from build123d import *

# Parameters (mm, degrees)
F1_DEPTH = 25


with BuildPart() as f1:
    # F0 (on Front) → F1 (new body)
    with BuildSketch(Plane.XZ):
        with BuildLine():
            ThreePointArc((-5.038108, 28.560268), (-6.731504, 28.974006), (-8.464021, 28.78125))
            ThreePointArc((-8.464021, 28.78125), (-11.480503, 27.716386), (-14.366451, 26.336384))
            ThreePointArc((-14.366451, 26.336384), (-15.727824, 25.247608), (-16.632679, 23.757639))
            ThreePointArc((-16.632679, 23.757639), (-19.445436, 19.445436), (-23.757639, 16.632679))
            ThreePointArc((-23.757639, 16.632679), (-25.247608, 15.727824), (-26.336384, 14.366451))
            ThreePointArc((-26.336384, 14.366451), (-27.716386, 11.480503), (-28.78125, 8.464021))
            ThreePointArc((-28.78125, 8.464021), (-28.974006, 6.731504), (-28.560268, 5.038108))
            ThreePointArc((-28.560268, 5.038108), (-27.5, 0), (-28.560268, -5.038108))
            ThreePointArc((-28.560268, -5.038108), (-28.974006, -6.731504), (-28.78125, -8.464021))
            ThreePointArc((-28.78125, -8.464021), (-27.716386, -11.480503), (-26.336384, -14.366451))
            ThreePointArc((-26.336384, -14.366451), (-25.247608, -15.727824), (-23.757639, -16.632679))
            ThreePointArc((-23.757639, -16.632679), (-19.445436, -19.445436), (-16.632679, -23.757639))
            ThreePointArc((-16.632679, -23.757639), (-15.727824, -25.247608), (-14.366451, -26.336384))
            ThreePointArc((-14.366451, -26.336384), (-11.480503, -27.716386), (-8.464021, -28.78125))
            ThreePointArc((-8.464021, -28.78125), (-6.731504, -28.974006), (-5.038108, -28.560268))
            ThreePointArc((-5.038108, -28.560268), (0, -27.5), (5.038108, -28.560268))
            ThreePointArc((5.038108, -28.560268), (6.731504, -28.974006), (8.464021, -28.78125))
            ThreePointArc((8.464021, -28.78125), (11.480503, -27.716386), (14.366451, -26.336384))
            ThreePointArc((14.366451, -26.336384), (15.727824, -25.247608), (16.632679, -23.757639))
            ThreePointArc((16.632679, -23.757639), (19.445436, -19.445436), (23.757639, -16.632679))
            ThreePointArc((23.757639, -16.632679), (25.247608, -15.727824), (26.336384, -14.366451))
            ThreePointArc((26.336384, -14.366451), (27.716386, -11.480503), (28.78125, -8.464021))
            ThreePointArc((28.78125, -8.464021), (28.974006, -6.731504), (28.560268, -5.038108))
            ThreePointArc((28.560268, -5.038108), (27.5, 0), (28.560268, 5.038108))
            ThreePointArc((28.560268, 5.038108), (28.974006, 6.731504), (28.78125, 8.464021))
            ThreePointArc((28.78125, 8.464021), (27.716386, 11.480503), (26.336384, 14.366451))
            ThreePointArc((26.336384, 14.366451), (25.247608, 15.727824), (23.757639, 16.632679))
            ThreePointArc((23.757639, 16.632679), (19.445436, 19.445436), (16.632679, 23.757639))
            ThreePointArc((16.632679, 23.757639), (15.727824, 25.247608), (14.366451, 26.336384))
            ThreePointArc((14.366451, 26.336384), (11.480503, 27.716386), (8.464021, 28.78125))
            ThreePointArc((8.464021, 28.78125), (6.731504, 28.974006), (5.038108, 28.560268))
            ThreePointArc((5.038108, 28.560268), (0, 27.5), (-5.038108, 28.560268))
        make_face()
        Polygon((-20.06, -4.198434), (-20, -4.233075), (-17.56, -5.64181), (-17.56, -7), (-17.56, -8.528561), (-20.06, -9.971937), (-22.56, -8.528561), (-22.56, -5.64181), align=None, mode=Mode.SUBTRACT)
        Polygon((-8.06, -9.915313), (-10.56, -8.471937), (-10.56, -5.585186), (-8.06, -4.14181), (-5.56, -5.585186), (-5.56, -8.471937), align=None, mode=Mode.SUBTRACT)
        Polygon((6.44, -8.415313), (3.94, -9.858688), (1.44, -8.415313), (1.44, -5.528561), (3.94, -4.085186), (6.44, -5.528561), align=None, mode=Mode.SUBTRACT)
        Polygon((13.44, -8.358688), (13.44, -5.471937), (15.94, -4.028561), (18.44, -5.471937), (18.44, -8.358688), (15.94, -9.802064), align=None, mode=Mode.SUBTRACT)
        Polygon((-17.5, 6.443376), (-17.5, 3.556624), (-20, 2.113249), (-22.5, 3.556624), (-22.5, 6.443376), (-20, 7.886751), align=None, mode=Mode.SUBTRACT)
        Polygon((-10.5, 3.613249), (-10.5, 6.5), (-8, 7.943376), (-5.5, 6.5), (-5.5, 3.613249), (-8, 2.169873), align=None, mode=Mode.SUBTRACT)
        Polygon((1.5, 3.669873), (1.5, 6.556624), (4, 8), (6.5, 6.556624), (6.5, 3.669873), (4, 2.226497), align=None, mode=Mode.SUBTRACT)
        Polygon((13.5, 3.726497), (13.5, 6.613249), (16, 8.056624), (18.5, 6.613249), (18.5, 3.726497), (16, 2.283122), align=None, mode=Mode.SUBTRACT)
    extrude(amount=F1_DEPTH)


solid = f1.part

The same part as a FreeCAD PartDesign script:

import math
import FreeCAD as App
import Part
import Sketcher


def add_polygon(sketch, points):
    """Adds a closed chain of lines whose ends are joined by coincident constraints."""
    first, n = sketch.GeometryCount, len(points)
    for a, b in zip(points, points[1:] + points[:1]):
        sketch.addGeometry(Part.LineSegment(App.Vector(*a, 0), App.Vector(*b, 0)), False)
    for i in range(n):
        sketch.addConstraint(Sketcher.Constraint("Coincident", first + i, 2, first + (i + 1) % n, 1))

doc = App.newDocument("Part")
body = doc.addObject("PartDesign::Body", "Body")

# Sketch on XZ plane
sketch1 = body.newObject("Sketcher::SketchObject", "Sketch")
sketch1.AttachmentSupport = (doc.getObject("XZ_Plane"), [""])
sketch1.MapMode = "FlatFace"
sketch1.addGeometry(Part.ArcOfCircle(Part.Circle(App.Vector(-7.053351, 23.984379, 0), App.Vector(0, 0, 1), 4.999996), math.radians(66.231086), math.radians(106.387629)), False)  # 0
sketch1.addGeometry(Part.ArcOfCircle(Part.Circle(App.Vector(0.000018, -0.000049, 0), App.Vector(0, 0, 1), 30.000052), math.radians(106.387617), math.radians(118.612373)), False)  # 1
sketch1.addGeometry(Part.ArcOfCircle(Part.Circle(App.Vector(-11.97204, 21.946985, 0), App.Vector(0, 0, 1), 5.000003), math.radians(118.612411), math.radians(158.768903)), False)  # 2
sketch1.addGeometry(Part.ArcOfCircle(Part.Circle(App.Vector(-28.284266, 28.284266, 0), App.Vector(0, 0, 1), 12.499993), math.radians(-68.768914), math.radians(-21.231086)), False)  # 3
sketch1.addGeometry(Part.ArcOfCircle(Part.Circle(App.Vector(-21.946985, 11.97204, 0), App.Vector(0, 0, 1), 5.000003), math.radians(111.231097), math.radians(151.387589)), False)  # 4
sketch1.addGeometry(Part.ArcOfCircle(Part.Circle(App.Vector(0.000049, -0.000018, 0), App.Vector(0, 0, 1), 30.000052), math.radians(151.387627), math.radians(163.612383)), False)  # 5
sketch1.addGeometry(Part.ArcOfCircle(Part.Circle(App.Vector(-23.984379, 7.053351, 0), App.Vector(0, 0, 1), 4.999996), math.radians(163.612371), math.radians(203.768914)), False)  # 6
sketch1.addGeometry(Part.ArcOfCircle(Part.Circle(App.Vector(-40, 0, 0), App.Vector(0, 0, 1), 12.5), math.radians(-23.768902), math.radians(23.768902)), False)  # 7
sketch1.addGeometry(Part.ArcOfCircle(Part.Circle(App.Vector(-23.984379, -7.053351, 0), App.Vector(0, 0, 1), 4.999996), math.radians(156.231086), math.radians(196.387629)), False)  # 8
sketch1.addGeometry(Part.ArcOfCircle(Part.Circle(App.Vector(0.000049, 0.000018, 0), App.Vector(0, 0, 1), 30.000052), math.radians(-163.612383), math.radians(-151.387627)), False)  # 9
sketch1.addGeometry(Part.ArcOfCircle(Part.Circle(App.Vector(-21.946985, -11.97204, 0), App.Vector(0, 0, 1), 5.000003), math.radians(-151.387589), math.radians(-111.231097)), False)  # 10
sketch1.addGeometry(Part.ArcOfCircle(Part.Circle(App.Vector(-28.284266, -28.284266, 0), App.Vector(0, 0, 1), 12.499993), math.radians(21.231086), math.radians(68.768914)), False)  # 11
sketch1.addGeometry(Part.ArcOfCircle(Part.Circle(App.Vector(-11.97204, -21.946985, 0), App.Vector(0, 0, 1), 5.000003), math.radians(-158.768903), math.radians(-118.612411)), False)  # 12
sketch1.addGeometry(Part.ArcOfCircle(Part.Circle(App.Vector(0.000018, 0.000049, 0), App.Vector(0, 0, 1), 30.000052), math.radians(-118.612373), math.radians(-106.387617)), False)  # 13
sketch1.addGeometry(Part.ArcOfCircle(Part.Circle(App.Vector(-7.053351, -23.984379, 0), App.Vector(0, 0, 1), 4.999996), math.radians(-106.387629), math.radians(-66.231086)), False)  # 14
sketch1.addGeometry(Part.ArcOfCircle(Part.Circle(App.Vector(0, -40, 0), App.Vector(0, 0, 1), 12.5), math.radians(66.231098), math.radians(113.768902)), False)  # 15
sketch1.addGeometry(Part.ArcOfCircle(Part.Circle(App.Vector(7.053351, -23.984379, 0), App.Vector(0, 0, 1), 4.999996), math.radians(-113.768914), math.radians(-73.612371)), False)  # 16
sketch1.addGeometry(Part.ArcOfCircle(Part.Circle(App.Vector(-0.000018, 0.000049, 0), App.Vector(0, 0, 1), 30.000052), math.radians(-73.612383), math.radians(-61.387627)), False)  # 17
sketch1.addGeometry(Part.ArcOfCircle(Part.Circle(App.Vector(11.97204, -21.946985, 0), App.Vector(0, 0, 1), 5.000003), math.radians(-61.387589), math.radians(-21.231097)), False)  # 18
sketch1.addGeometry(Part.ArcOfCircle(Part.Circle(App.Vector(28.284266, -28.284266, 0), App.Vector(0, 0, 1), 12.499993), math.radians(111.231086), math.radians(158.768914)), False)  # 19
sketch1.addGeometry(Part.ArcOfCircle(Part.Circle(App.Vector(21.946985, -11.97204, 0), App.Vector(0, 0, 1), 5.000003), math.radians(-68.768903), math.radians(-28.612411)), False)  # 20
sketch1.addGeometry(Part.ArcOfCircle(Part.Circle(App.Vector(-0.000049, 0.000018, 0), App.Vector(0, 0, 1), 30.000052), math.radians(-28.612373), math.radians(-16.387617)), False)  # 21
sketch1.addGeometry(Part.ArcOfCircle(Part.Circle(App.Vector(23.984379, -7.053351, 0), App.Vector(0, 0, 1), 4.999996), math.radians(-16.387629), math.radians(23.768914)), False)  # 22
sketch1.addGeometry(Part.ArcOfCircle(Part.Circle(App.Vector(40, 0, 0), App.Vector(0, 0, 1), 12.5), math.radians(156.231098), math.radians(203.768902)), False)  # 23
sketch1.addGeometry(Part.ArcOfCircle(Part.Circle(App.Vector(23.984379, 7.053351, 0), App.Vector(0, 0, 1), 4.999996), math.radians(-23.768914), math.radians(16.387629)), False)  # 24
sketch1.addGeometry(Part.ArcOfCircle(Part.Circle(App.Vector(-0.000049, -0.000018, 0), App.Vector(0, 0, 1), 30.000052), math.radians(16.387617), math.radians(28.612373)), False)  # 25
sketch1.addGeometry(Part.ArcOfCircle(Part.Circle(App.Vector(21.946985, 11.97204, 0), App.Vector(0, 0, 1), 5.000003), math.radians(28.612411), math.radians(68.768903)), False)  # 26
sketch1.addGeometry(Part.ArcOfCircle(Part.Circle(App.Vector(28.284266, 28.284266, 0), App.Vector(0, 0, 1), 12.499993), math.radians(-158.768914), math.radians(-111.231086)), False)  # 27
sketch1.addGeometry(Part.ArcOfCircle(Part.Circle(App.Vector(11.97204, 21.946985, 0), App.Vector(0, 0, 1), 5.000003), math.radians(21.231097), math.radians(61.387589)), False)  # 28
sketch1.addGeometry(Part.ArcOfCircle(Part.Circle(App.Vector(-0.000018, -0.000049, 0), App.Vector(0, 0, 1), 30.000052), math.radians(61.387627), math.radians(73.612383)), False)  # 29
sketch1.addGeometry(Part.ArcOfCircle(Part.Circle(App.Vector(7.053351, 23.984379, 0), App.Vector(0, 0, 1), 4.999996), math.radians(73.612371), math.radians(113.768914)), False)  # 30
sketch1.addGeometry(Part.ArcOfCircle(Part.Circle(App.Vector(0, 40, 0), App.Vector(0, 0, 1), 12.5), math.radians(-113.768902), math.radians(-66.231098)), False)  # 31
add_polygon(sketch1, [(-22.56, -5.64181), (-20.06, -4.198434), (-20, -4.233075), (-17.56, -5.64181), (-17.56, -8.528561), (-20.06, -9.971937), (-22.56, -8.528561)])  # lines 32-38
add_polygon(sketch1, [(-5.56, -8.471937), (-8.06, -9.915313), (-10.56, -8.471937), (-10.56, -5.585186), (-8.06, -4.14181), (-5.56, -5.585186)])  # lines 39-44
add_polygon(sketch1, [(6.44, -5.528561), (6.44, -8.415313), (3.94, -9.858688), (1.44, -8.415313), (1.44, -5.528561), (3.94, -4.085186)])  # lines 45-50
add_polygon(sketch1, [(15.94, -9.802064), (13.44, -8.358688), (13.44, -5.471937), (15.94, -4.028561), (18.44, -5.471937), (18.44, -8.358688)])  # lines 51-56
add_polygon(sketch1, [(-20, 7.886751), (-17.5, 6.443376), (-17.5, 3.556624), (-20, 2.113249), (-22.5, 3.556624), (-22.5, 6.443376)])  # lines 57-62
add_polygon(sketch1, [(-8, 2.169873), (-10.5, 3.613249), (-10.5, 6.5), (-8, 7.943376), (-5.5, 6.5), (-5.5, 3.613249)])  # lines 63-68
add_polygon(sketch1, [(4, 2.226497), (1.5, 3.669873), (1.5, 6.556624), (4, 8), (6.5, 6.556624), (6.5, 3.669873)])  # lines 69-74
add_polygon(sketch1, [(16, 2.283122), (13.5, 3.726497), (13.5, 6.613249), (16, 8.056624), (18.5, 6.613249), (18.5, 3.726497)])  # lines 75-80
sketch1.addConstraint(Sketcher.Constraint("Coincident", 0, 2, 1, 1))
sketch1.addConstraint(Sketcher.Constraint("Coincident", 1, 2, 2, 1))
sketch1.addConstraint(Sketcher.Constraint("Coincident", 2, 2, 3, 2))
sketch1.addConstraint(Sketcher.Constraint("Coincident", 3, 1, 4, 1))
sketch1.addConstraint(Sketcher.Constraint("Coincident", 4, 2, 5, 1))
sketch1.addConstraint(Sketcher.Constraint("Coincident", 5, 2, 6, 1))
sketch1.addConstraint(Sketcher.Constraint("Coincident", 6, 2, 7, 2))
sketch1.addConstraint(Sketcher.Constraint("Coincident", 7, 1, 8, 1))
sketch1.addConstraint(Sketcher.Constraint("Coincident", 8, 2, 9, 1))
sketch1.addConstraint(Sketcher.Constraint("Coincident", 9, 2, 10, 1))
sketch1.addConstraint(Sketcher.Constraint("Coincident", 10, 2, 11, 2))
sketch1.addConstraint(Sketcher.Constraint("Coincident", 11, 1, 12, 1))
sketch1.addConstraint(Sketcher.Constraint("Coincident", 12, 2, 13, 1))
sketch1.addConstraint(Sketcher.Constraint("Coincident", 13, 2, 14, 1))
sketch1.addConstraint(Sketcher.Constraint("Coincident", 14, 2, 15, 2))
sketch1.addConstraint(Sketcher.Constraint("Coincident", 15, 1, 16, 1))
sketch1.addConstraint(Sketcher.Constraint("Coincident", 16, 2, 17, 1))
sketch1.addConstraint(Sketcher.Constraint("Coincident", 17, 2, 18, 1))
sketch1.addConstraint(Sketcher.Constraint("Coincident", 18, 2, 19, 2))
sketch1.addConstraint(Sketcher.Constraint("Coincident", 19, 1, 20, 1))
sketch1.addConstraint(Sketcher.Constraint("Coincident", 20, 2, 21, 1))
sketch1.addConstraint(Sketcher.Constraint("Coincident", 21, 2, 22, 1))
sketch1.addConstraint(Sketcher.Constraint("Coincident", 22, 2, 23, 2))
sketch1.addConstraint(Sketcher.Constraint("Coincident", 23, 1, 24, 1))
sketch1.addConstraint(Sketcher.Constraint("Coincident", 24, 2, 25, 1))
sketch1.addConstraint(Sketcher.Constraint("Coincident", 25, 2, 26, 1))
sketch1.addConstraint(Sketcher.Constraint("Coincident", 26, 2, 27, 2))
sketch1.addConstraint(Sketcher.Constraint("Coincident", 27, 1, 28, 1))
sketch1.addConstraint(Sketcher.Constraint("Coincident", 28, 2, 29, 1))
sketch1.addConstraint(Sketcher.Constraint("Coincident", 29, 2, 30, 1))
sketch1.addConstraint(Sketcher.Constraint("Coincident", 30, 2, 31, 2))
sketch1.addConstraint(Sketcher.Constraint("Coincident", 31, 1, 0, 1))
sketch1.addConstraint(Sketcher.Constraint("Vertical", 35))
sketch1.addConstraint(Sketcher.Constraint("Vertical", 38))
sketch1.addConstraint(Sketcher.Constraint("Vertical", 41))
sketch1.addConstraint(Sketcher.Constraint("Vertical", 44))
sketch1.addConstraint(Sketcher.Constraint("Vertical", 45))
sketch1.addConstraint(Sketcher.Constraint("Vertical", 48))
sketch1.addConstraint(Sketcher.Constraint("Vertical", 52))
sketch1.addConstraint(Sketcher.Constraint("Vertical", 55))
sketch1.addConstraint(Sketcher.Constraint("Vertical", 58))
sketch1.addConstraint(Sketcher.Constraint("Vertical", 61))
sketch1.addConstraint(Sketcher.Constraint("Vertical", 64))
sketch1.addConstraint(Sketcher.Constraint("Vertical", 67))
sketch1.addConstraint(Sketcher.Constraint("Vertical", 70))
sketch1.addConstraint(Sketcher.Constraint("Vertical", 73))
sketch1.addConstraint(Sketcher.Constraint("Vertical", 76))
sketch1.addConstraint(Sketcher.Constraint("Vertical", 79))
sketch1.addConstraint(Sketcher.Constraint("PointOnObject", 7, 3, -1))
sketch1.addConstraint(Sketcher.Constraint("PointOnObject", 15, 3, -2))
sketch1.addConstraint(Sketcher.Constraint("PointOnObject", 23, 3, -1))
sketch1.addConstraint(Sketcher.Constraint("PointOnObject", 31, 3, -2))
sketch1.addConstraint(Sketcher.Constraint("Radius", 7, 12.5))
sketch1.addConstraint(Sketcher.Constraint("Radius", 15, 12.5))
sketch1.addConstraint(Sketcher.Constraint("Radius", 23, 12.5))
sketch1.addConstraint(Sketcher.Constraint("Radius", 31, 12.5))
sketch1.addConstraint(Sketcher.Constraint("DistanceX", 7, 3, -1, 1, 40.0))
sketch1.addConstraint(Sketcher.Constraint("DistanceY", 15, 3, -1, 1, 40.0))
sketch1.addConstraint(Sketcher.Constraint("DistanceX", -1, 1, 23, 3, 40.0))
sketch1.addConstraint(Sketcher.Constraint("DistanceY", -1, 1, 31, 3, 40.0))
sketch1.addConstraint(Sketcher.Constraint("DistanceX", 33, 2, -1, 1, 20.0))
sketch1.addConstraint(Sketcher.Constraint("DistanceX", 59, 2, -1, 1, 20.0))
sketch1.addConstraint(Sketcher.Constraint("DistanceX", 62, 2, -1, 1, 20.0))
sketch1.addConstraint(Sketcher.Constraint("DistanceX", 65, 2, -1, 1, 8.0))
sketch1.addConstraint(Sketcher.Constraint("DistanceX", 68, 2, -1, 1, 8.0))
sketch1.addConstraint(Sketcher.Constraint("DistanceX", -1, 1, 71, 2, 4.0))
sketch1.addConstraint(Sketcher.Constraint("DistanceY", -1, 1, 71, 2, 8.0))
sketch1.addConstraint(Sketcher.Constraint("DistanceX", -1, 1, 74, 2, 4.0))
sketch1.addConstraint(Sketcher.Constraint("DistanceX", -1, 1, 77, 2, 16.0))
sketch1.addConstraint(Sketcher.Constraint("DistanceX", -1, 1, 80, 2, 16.0))
sketch1.addConstraint(Sketcher.Constraint("DistanceX", 57, 2, -1, 1, 17.5))
sketch1.addConstraint(Sketcher.Constraint("DistanceX", 60, 2, -1, 1, 22.5))
sketch1.addConstraint(Sketcher.Constraint("DistanceX", 63, 2, -1, 1, 10.5))
sketch1.addConstraint(Sketcher.Constraint("DistanceY", -1, 1, 64, 2, 6.5))
sketch1.addConstraint(Sketcher.Constraint("DistanceX", 66, 2, -1, 1, 5.5))
sketch1.addConstraint(Sketcher.Constraint("DistanceY", -1, 1, 66, 2, 6.5))
sketch1.addConstraint(Sketcher.Constraint("DistanceX", -1, 1, 69, 2, 1.5))
sketch1.addConstraint(Sketcher.Constraint("DistanceX", -1, 1, 72, 2, 6.5))
sketch1.addConstraint(Sketcher.Constraint("DistanceX", -1, 1, 75, 2, 13.5))
sketch1.addConstraint(Sketcher.Constraint("DistanceX", -1, 1, 78, 2, 18.5))
sketch1.addConstraint(Sketcher.Constraint("DistanceX", 32, 2, -1, 1, 20.06))
sketch1.addConstraint(Sketcher.Constraint("DistanceX", 34, 2, -1, 1, 17.56))
sketch1.addConstraint(Sketcher.Constraint("DistanceX", 36, 2, -1, 1, 20.06))
sketch1.addConstraint(Sketcher.Constraint("DistanceX", 37, 2, -1, 1, 22.56))
sketch1.addConstraint(Sketcher.Constraint("DistanceX", 39, 2, -1, 1, 8.06))
sketch1.addConstraint(Sketcher.Constraint("DistanceX", 40, 2, -1, 1, 10.56))
sketch1.addConstraint(Sketcher.Constraint("DistanceX", 42, 2, -1, 1, 8.06))
sketch1.addConstraint(Sketcher.Constraint("DistanceX", 43, 2, -1, 1, 5.56))
sketch1.addConstraint(Sketcher.Constraint("DistanceX", -1, 1, 45, 2, 6.44))
sketch1.addConstraint(Sketcher.Constraint("DistanceX", -1, 1, 46, 2, 3.94))
sketch1.addConstraint(Sketcher.Constraint("DistanceX", -1, 1, 47, 2, 1.44))
sketch1.addConstraint(Sketcher.Constraint("DistanceX", -1, 1, 49, 2, 3.94))
sketch1.addConstraint(Sketcher.Constraint("DistanceX", -1, 1, 51, 2, 13.44))
sketch1.addConstraint(Sketcher.Constraint("DistanceX", -1, 1, 53, 2, 15.94))
sketch1.addConstraint(Sketcher.Constraint("DistanceX", -1, 1, 54, 2, 18.44))
sketch1.addConstraint(Sketcher.Constraint("DistanceX", -1, 1, 56, 2, 15.94))
sketch1.addConstraint(Sketcher.Constraint("Radius", 0, 4.999996))
sketch1.addConstraint(Sketcher.Constraint("Radius", 1, 30.000052))
sketch1.addConstraint(Sketcher.Constraint("Radius", 2, 5.000003))
sketch1.addConstraint(Sketcher.Constraint("Radius", 3, 12.499993))
sketch1.addConstraint(Sketcher.Constraint("Radius", 4, 5.000003))
sketch1.addConstraint(Sketcher.Constraint("Radius", 5, 30.000052))
sketch1.addConstraint(Sketcher.Constraint("Radius", 6, 4.999996))
sketch1.addConstraint(Sketcher.Constraint("Radius", 8, 4.999996))
sketch1.addConstraint(Sketcher.Constraint("Radius", 9, 30.000052))
sketch1.addConstraint(Sketcher.Constraint("Radius", 10, 5.000003))
sketch1.addConstraint(Sketcher.Constraint("Radius", 11, 12.499993))
sketch1.addConstraint(Sketcher.Constraint("Radius", 12, 5.000003))
sketch1.addConstraint(Sketcher.Constraint("Radius", 13, 30.000052))
sketch1.addConstraint(Sketcher.Constraint("Radius", 14, 4.999996))
sketch1.addConstraint(Sketcher.Constraint("Radius", 16, 4.999996))
sketch1.addConstraint(Sketcher.Constraint("Radius", 17, 30.000052))
sketch1.addConstraint(Sketcher.Constraint("Radius", 18, 5.000003))
sketch1.addConstraint(Sketcher.Constraint("Radius", 19, 12.499993))
sketch1.addConstraint(Sketcher.Constraint("Radius", 20, 5.000003))
sketch1.addConstraint(Sketcher.Constraint("Radius", 21, 30.000052))
sketch1.addConstraint(Sketcher.Constraint("Radius", 22, 4.999996))
sketch1.addConstraint(Sketcher.Constraint("Radius", 24, 4.999996))
sketch1.addConstraint(Sketcher.Constraint("Radius", 25, 30.000052))
sketch1.addConstraint(Sketcher.Constraint("Radius", 26, 5.000003))
sketch1.addConstraint(Sketcher.Constraint("Radius", 27, 12.499993))
sketch1.addConstraint(Sketcher.Constraint("Radius", 28, 5.000003))
sketch1.addConstraint(Sketcher.Constraint("Radius", 29, 30.000052))
sketch1.addConstraint(Sketcher.Constraint("Radius", 30, 4.999996))
sketch1.addConstraint(Sketcher.Constraint("DistanceY", 35, 2, 35, 1, 2.886751))
sketch1.addConstraint(Sketcher.Constraint("DistanceY", 38, 1, 38, 2, 2.886751))
sketch1.addConstraint(Sketcher.Constraint("DistanceY", 41, 1, 41, 2, 2.886751))
sketch1.addConstraint(Sketcher.Constraint("DistanceY", 44, 2, 44, 1, 2.886751))
sketch1.addConstraint(Sketcher.Constraint("DistanceY", 45, 2, 45, 1, 2.886752))
sketch1.addConstraint(Sketcher.Constraint("DistanceY", 48, 1, 48, 2, 2.886752))
sketch1.addConstraint(Sketcher.Constraint("DistanceY", 52, 1, 52, 2, 2.886751))
sketch1.addConstraint(Sketcher.Constraint("DistanceY", 55, 2, 55, 1, 2.886751))
sketch1.addConstraint(Sketcher.Constraint("DistanceY", 58, 2, 58, 1, 2.886752))
sketch1.addConstraint(Sketcher.Constraint("DistanceY", 61, 1, 61, 2, 2.886752))
sketch1.addConstraint(Sketcher.Constraint("DistanceY", 64, 1, 64, 2, 2.886751))
sketch1.addConstraint(Sketcher.Constraint("DistanceY", 67, 2, 67, 1, 2.886751))
sketch1.addConstraint(Sketcher.Constraint("DistanceY", 70, 1, 70, 2, 2.886751))
sketch1.addConstraint(Sketcher.Constraint("DistanceY", 73, 2, 73, 1, 2.886751))
sketch1.addConstraint(Sketcher.Constraint("DistanceY", 76, 1, 76, 2, 2.886752))
sketch1.addConstraint(Sketcher.Constraint("DistanceY", 79, 2, 79, 1, 2.886752))
sketch1.addConstraint(Sketcher.Constraint("Distance", 32, 2.886752))
sketch1.addConstraint(Sketcher.Constraint("Distance", 34, 2.817469))
sketch1.addConstraint(Sketcher.Constraint("Distance", 36, 2.886752))
sketch1.addConstraint(Sketcher.Constraint("Distance", 37, 2.886752))
sketch1.addConstraint(Sketcher.Constraint("Distance", 39, 2.886752))
sketch1.addConstraint(Sketcher.Constraint("Distance", 40, 2.886752))
sketch1.addConstraint(Sketcher.Constraint("Distance", 42, 2.886752))
sketch1.addConstraint(Sketcher.Constraint("Distance", 46, 2.886751))
sketch1.addConstraint(Sketcher.Constraint("Distance", 47, 2.886751))
sketch1.addConstraint(Sketcher.Constraint("Distance", 49, 2.886751))
sketch1.addConstraint(Sketcher.Constraint("Distance", 51, 2.886752))
sketch1.addConstraint(Sketcher.Constraint("Distance", 53, 2.886752))
sketch1.addConstraint(Sketcher.Constraint("Distance", 54, 2.886752))
sketch1.addConstraint(Sketcher.Constraint("Distance", 57, 2.886751))
sketch1.addConstraint(Sketcher.Constraint("Distance", 59, 2.886751))
sketch1.addConstraint(Sketcher.Constraint("Distance", 60, 2.886751))
sketch1.addConstraint(Sketcher.Constraint("Distance", 63, 2.886752))
sketch1.addConstraint(Sketcher.Constraint("Distance", 65, 2.886752))
sketch1.addConstraint(Sketcher.Constraint("Distance", 69, 2.886752))
sketch1.addConstraint(Sketcher.Constraint("Distance", 71, 2.886752))
sketch1.addConstraint(Sketcher.Constraint("Distance", 72, 2.886752))
sketch1.addConstraint(Sketcher.Constraint("Distance", 75, 2.886751))
sketch1.addConstraint(Sketcher.Constraint("Distance", 77, 2.886751))
sketch1.addConstraint(Sketcher.Constraint("Distance", 78, 2.886751))
sketch1.addConstraint(Sketcher.Constraint("DistanceX", 0, 3, -1, 1, 7.053351))
sketch1.addConstraint(Sketcher.Constraint("DistanceX", 2, 3, -1, 1, 11.97204))
sketch1.addConstraint(Sketcher.Constraint("DistanceY", -1, 1, 4, 3, 11.97204))
sketch1.addConstraint(Sketcher.Constraint("DistanceX", 6, 3, -1, 1, 23.984379))
sketch1.addConstraint(Sketcher.Constraint("DistanceX", 8, 3, -1, 1, 23.984379))
sketch1.addConstraint(Sketcher.Constraint("DistanceY", 10, 3, -1, 1, 11.97204))
sketch1.addConstraint(Sketcher.Constraint("DistanceX", 12, 3, -1, 1, 11.97204))
sketch1.addConstraint(Sketcher.Constraint("DistanceX", 14, 3, -1, 1, 7.053351))
sketch1.addConstraint(Sketcher.Constraint("DistanceX", -1, 1, 16, 3, 7.053351))
sketch1.addConstraint(Sketcher.Constraint("DistanceX", -1, 1, 18, 3, 11.97204))
sketch1.addConstraint(Sketcher.Constraint("DistanceY", 20, 3, -1, 1, 11.97204))
sketch1.addConstraint(Sketcher.Constraint("DistanceX", -1, 1, 22, 3, 23.984379))
sketch1.addConstraint(Sketcher.Constraint("DistanceX", -1, 1, 24, 3, 23.984379))
sketch1.addConstraint(Sketcher.Constraint("DistanceY", -1, 1, 26, 3, 11.97204))
sketch1.addConstraint(Sketcher.Constraint("DistanceX", -1, 1, 28, 3, 11.97204))
sketch1.addConstraint(Sketcher.Constraint("DistanceX", -1, 1, 30, 3, 7.053351))
sketch1.addConstraint(Sketcher.Constraint("DistanceX", 0, 2, -1, 1, 8.464021))
sketch1.addConstraint(Sketcher.Constraint("DistanceX", 1, 2, -1, 1, 14.366451))
sketch1.addConstraint(Sketcher.Constraint("DistanceX", 2, 2, -1, 1, 16.632679))
sketch1.addConstraint(Sketcher.Constraint("DistanceY", -1, 1, 2, 2, 23.757639))
sketch1.addConstraint(Sketcher.Constraint("DistanceX", 3, 1, -1, 1, 23.757639))
sketch1.addConstraint(Sketcher.Constraint("DistanceY", -1, 1, 3, 1, 16.632679))
sketch1.addConstraint(Sketcher.Constraint("DistanceY", -1, 1, 4, 2, 14.366451))
sketch1.addConstraint(Sketcher.Constraint("DistanceX", 5, 2, -1, 1, 28.78125))
sketch1.addConstraint(Sketcher.Constraint("DistanceX", 6, 2, -1, 1, 28.560268))
sketch1.addConstraint(Sketcher.Constraint("DistanceY", 7, 1, -1, 1, 5.038108))
sketch1.addConstraint(Sketcher.Constraint("DistanceX", 8, 2, -1, 1, 28.78125))
sketch1.addConstraint(Sketcher.Constraint("DistanceY", 9, 2, -1, 1, 14.366451))
sketch1.addConstraint(Sketcher.Constraint("DistanceX", 10, 2, -1, 1, 23.757639))
sketch1.addConstraint(Sketcher.Constraint("DistanceY", 10, 2, -1, 1, 16.632679))
sketch1.addConstraint(Sketcher.Constraint("DistanceX", 11, 1, -1, 1, 16.632679))
sketch1.addConstraint(Sketcher.Constraint("DistanceY", 11, 1, -1, 1, 23.757639))
sketch1.addConstraint(Sketcher.Constraint("DistanceX", 12, 2, -1, 1, 14.366451))
sketch1.addConstraint(Sketcher.Constraint("DistanceX", 13, 2, -1, 1, 8.464021))
sketch1.addConstraint(Sketcher.Constraint("DistanceY", 14, 2, -1, 1, 28.560268))
sketch1.addConstraint(Sketcher.Constraint("DistanceX", -1, 1, 15, 1, 5.038108))
sketch1.addConstraint(Sketcher.Constraint("DistanceX", -1, 1, 16, 2, 8.464021))
sketch1.addConstraint(Sketcher.Constraint("DistanceX", -1, 1, 17, 2, 14.366451))
sketch1.addConstraint(Sketcher.Constraint("DistanceX", -1, 1, 18, 2, 16.632679))
sketch1.addConstraint(Sketcher.Constraint("DistanceY", 18, 2, -1, 1, 23.757639))
sketch1.addConstraint(Sketcher.Constraint("DistanceX", -1, 1, 19, 1, 23.757639))
sketch1.addConstraint(Sketcher.Constraint("DistanceY", 19, 1, -1, 1, 16.632679))
sketch1.addConstraint(Sketcher.Constraint("DistanceY", 20, 2, -1, 1, 14.366451))
sketch1.addConstraint(Sketcher.Constraint("DistanceX", -1, 1, 21, 2, 28.78125))
sketch1.addConstraint(Sketcher.Constraint("DistanceX", -1, 1, 22, 2, 28.560268))
sketch1.addConstraint(Sketcher.Constraint("DistanceY", -1, 1, 23, 1, 5.038108))
sketch1.addConstraint(Sketcher.Constraint("DistanceX", -1, 1, 24, 2, 28.78125))
sketch1.addConstraint(Sketcher.Constraint("DistanceY", -1, 1, 25, 2, 14.366451))
sketch1.addConstraint(Sketcher.Constraint("DistanceX", -1, 1, 26, 2, 23.757639))
sketch1.addConstraint(Sketcher.Constraint("DistanceY", -1, 1, 26, 2, 16.632679))
sketch1.addConstraint(Sketcher.Constraint("DistanceX", -1, 1, 27, 1, 16.632679))
sketch1.addConstraint(Sketcher.Constraint("DistanceY", -1, 1, 27, 1, 23.757639))
sketch1.addConstraint(Sketcher.Constraint("DistanceX", -1, 1, 28, 2, 14.366451))
sketch1.addConstraint(Sketcher.Constraint("DistanceX", -1, 1, 29, 2, 8.464021))
sketch1.addConstraint(Sketcher.Constraint("DistanceY", -1, 1, 30, 2, 28.560268))
sketch1.addConstraint(Sketcher.Constraint("DistanceX", 31, 1, -1, 1, 5.038108))
sketch1.addConstraint(Sketcher.Constraint("DistanceY", 34, 2, -1, 1, 5.64181))
sketch1.addConstraint(Sketcher.Constraint("DistanceY", 42, 2, -1, 1, 4.14181))
sketch1.addConstraint(Sketcher.Constraint("DistanceY", 46, 2, -1, 1, 9.858688))
sketch1.addConstraint(Sketcher.Constraint("DistanceY", 51, 2, -1, 1, 8.358688))
sketch1.addConstraint(Sketcher.Constraint("DistanceY", -1, 1, 59, 2, 2.113249))
sketch1.addConstraint(Sketcher.Constraint("DistanceY", -1, 1, 76, 2, 6.613249))
pad1 = body.newObject("PartDesign::Pad", "Pad")
pad1.Profile = sketch1
pad1.Length = 25

doc.recompute()
